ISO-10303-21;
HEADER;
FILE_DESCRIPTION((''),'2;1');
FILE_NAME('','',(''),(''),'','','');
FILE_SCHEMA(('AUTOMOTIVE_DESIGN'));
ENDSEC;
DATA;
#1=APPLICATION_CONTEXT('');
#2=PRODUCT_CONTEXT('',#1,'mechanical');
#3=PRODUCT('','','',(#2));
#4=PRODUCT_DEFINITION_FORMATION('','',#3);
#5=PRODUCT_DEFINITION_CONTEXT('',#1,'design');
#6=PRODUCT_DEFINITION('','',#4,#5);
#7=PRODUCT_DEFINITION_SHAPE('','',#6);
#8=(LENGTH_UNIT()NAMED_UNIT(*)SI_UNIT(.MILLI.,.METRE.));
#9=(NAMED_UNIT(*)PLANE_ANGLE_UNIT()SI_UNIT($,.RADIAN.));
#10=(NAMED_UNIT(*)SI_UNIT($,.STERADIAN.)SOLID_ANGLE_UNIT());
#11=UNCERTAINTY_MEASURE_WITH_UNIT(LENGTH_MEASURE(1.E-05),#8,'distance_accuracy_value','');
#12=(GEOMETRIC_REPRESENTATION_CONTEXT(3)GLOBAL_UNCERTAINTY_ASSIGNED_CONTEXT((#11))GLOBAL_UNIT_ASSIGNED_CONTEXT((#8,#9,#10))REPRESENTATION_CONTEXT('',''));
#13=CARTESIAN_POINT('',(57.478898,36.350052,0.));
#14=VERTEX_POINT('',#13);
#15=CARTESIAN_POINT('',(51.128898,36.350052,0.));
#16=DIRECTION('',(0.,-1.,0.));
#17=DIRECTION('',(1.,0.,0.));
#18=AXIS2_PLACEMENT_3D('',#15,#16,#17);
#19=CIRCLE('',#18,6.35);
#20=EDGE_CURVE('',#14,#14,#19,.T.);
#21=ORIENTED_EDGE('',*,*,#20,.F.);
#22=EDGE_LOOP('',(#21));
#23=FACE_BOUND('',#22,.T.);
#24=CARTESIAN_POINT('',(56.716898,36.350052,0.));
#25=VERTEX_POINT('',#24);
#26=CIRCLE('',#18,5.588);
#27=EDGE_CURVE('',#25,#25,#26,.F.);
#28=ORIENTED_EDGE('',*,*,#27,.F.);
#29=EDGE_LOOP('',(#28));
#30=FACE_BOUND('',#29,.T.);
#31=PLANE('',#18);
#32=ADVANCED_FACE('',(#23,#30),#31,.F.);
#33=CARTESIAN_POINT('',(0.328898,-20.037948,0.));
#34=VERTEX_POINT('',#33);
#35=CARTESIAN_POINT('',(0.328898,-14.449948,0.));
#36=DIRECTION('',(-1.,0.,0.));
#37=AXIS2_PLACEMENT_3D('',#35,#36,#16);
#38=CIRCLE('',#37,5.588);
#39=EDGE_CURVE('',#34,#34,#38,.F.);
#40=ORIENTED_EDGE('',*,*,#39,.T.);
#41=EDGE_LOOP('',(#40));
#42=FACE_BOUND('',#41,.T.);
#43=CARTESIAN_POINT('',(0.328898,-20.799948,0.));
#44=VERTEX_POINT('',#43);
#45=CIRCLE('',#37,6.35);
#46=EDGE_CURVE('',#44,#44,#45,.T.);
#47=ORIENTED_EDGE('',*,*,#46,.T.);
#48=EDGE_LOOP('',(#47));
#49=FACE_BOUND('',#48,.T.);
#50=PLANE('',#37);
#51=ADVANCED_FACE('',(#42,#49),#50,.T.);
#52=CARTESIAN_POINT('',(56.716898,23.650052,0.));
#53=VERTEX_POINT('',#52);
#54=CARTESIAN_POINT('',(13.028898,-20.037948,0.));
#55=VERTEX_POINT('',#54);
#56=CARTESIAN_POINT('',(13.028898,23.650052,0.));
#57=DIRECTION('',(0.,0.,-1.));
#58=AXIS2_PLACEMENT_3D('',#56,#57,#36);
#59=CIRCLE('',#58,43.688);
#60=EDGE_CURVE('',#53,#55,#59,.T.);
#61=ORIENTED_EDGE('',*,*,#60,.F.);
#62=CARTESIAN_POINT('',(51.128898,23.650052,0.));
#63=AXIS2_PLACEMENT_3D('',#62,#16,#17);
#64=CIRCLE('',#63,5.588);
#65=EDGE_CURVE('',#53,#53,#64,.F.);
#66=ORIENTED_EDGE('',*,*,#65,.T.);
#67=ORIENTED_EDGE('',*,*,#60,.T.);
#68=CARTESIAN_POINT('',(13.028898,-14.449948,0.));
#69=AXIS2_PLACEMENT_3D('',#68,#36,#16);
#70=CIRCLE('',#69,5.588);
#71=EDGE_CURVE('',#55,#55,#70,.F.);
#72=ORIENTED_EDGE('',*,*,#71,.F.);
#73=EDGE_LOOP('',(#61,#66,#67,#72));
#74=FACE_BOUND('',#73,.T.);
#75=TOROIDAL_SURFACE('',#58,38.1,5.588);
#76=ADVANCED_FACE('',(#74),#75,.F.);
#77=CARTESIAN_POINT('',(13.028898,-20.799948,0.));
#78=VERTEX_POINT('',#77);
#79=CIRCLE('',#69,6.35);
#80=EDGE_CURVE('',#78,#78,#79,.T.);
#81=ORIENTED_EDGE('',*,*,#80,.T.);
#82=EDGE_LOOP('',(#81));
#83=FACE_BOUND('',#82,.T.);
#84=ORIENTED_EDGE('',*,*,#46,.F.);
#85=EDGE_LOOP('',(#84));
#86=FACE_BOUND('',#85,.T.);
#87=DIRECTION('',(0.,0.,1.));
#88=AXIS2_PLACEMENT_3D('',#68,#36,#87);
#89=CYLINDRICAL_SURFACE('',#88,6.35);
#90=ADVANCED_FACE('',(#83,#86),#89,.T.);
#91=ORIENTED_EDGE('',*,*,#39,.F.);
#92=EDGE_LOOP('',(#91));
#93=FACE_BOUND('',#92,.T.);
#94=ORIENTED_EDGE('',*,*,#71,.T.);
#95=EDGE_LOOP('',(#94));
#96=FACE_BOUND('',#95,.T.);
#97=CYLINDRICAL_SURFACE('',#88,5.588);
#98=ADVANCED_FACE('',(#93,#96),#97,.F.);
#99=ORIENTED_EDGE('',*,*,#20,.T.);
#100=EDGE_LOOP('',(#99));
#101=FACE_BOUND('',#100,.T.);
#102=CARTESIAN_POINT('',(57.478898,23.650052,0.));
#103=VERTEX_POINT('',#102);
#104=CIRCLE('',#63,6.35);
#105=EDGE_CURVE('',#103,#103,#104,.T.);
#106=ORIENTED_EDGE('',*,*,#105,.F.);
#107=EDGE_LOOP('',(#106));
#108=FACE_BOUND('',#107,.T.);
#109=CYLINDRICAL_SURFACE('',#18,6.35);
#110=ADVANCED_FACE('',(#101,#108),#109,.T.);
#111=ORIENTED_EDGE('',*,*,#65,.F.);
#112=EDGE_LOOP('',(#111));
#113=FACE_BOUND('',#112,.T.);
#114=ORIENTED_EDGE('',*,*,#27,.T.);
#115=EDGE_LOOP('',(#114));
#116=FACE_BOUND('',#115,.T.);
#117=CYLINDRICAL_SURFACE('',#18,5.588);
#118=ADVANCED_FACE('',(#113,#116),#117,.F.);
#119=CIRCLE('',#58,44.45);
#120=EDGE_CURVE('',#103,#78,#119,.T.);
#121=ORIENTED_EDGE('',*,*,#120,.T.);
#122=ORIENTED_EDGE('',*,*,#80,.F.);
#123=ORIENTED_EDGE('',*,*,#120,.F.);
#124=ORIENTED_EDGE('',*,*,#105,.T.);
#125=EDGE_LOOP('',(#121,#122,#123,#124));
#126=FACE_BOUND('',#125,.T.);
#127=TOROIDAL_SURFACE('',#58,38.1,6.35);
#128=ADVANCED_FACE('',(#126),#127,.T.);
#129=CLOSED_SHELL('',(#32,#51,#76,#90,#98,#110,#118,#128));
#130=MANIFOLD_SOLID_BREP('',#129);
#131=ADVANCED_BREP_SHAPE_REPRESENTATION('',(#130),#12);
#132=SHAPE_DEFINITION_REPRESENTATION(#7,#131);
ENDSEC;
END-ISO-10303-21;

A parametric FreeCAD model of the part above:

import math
import FreeCAD as App
import Part
import Sketcher
Q = App.Units.Quantity

doc = App.newDocument("Part")
body = doc.addObject("PartDesign::Body", "Body")

# Sketch on XZ plane
sketch1 = body.newObject("Sketcher::SketchObject", "Sketch")
sketch1.AttachmentSupport = (doc.getObject("XZ_Plane"), [""])
sketch1.MapMode = "FlatFace"
sketch1.AttachmentOffset = App.Placement(App.Vector(0, 0, -36.350052), App.Rotation())
sketch1.addGeometry([
    Part.Circle(App.Vector(51, 0, 0), App.Vector(0, 0, 1), 6),
    Part.Circle(App.Vector(51, 0, 0), App.Vector(0, 0, 1), 6),
], False)
sketch1.addConstraint([
    Sketcher.Constraint("Coincident", 1, 3, 0, 3),
    Sketcher.Constraint("PointOnObject", 0, 3, -1),
    Sketcher.Constraint("Diameter", 0, Q("0.5 in")),
    Sketcher.Constraint("Diameter", 1, Q("0.44 in")),
    Sketcher.Constraint("DistanceX", -1, 1, 0, 3, Q("51.128898 mm")),
])

# Sketch on XY plane
sketch2 = body.newObject("Sketcher::SketchObject", "Sketch001")
sketch2.AttachmentSupport = (doc.getObject("XY_Plane"), [""])
sketch2.MapMode = "FlatFace"
sketch2.addGeometry([
    Part.LineSegment(App.Vector(51, 36, 0), App.Vector(51, 24, 0)),
    Part.ArcOfCircle(Part.Circle(App.Vector(13, 24, 0), App.Vector(0, 0, 1), 38), math.radians(-90), math.radians(0)),
    Part.LineSegment(App.Vector(13, -14, 0), App.Vector(0, -14, 0)),
], False)
sketch2.addConstraint([
    Sketcher.Constraint("Tangent", 0, 2, 1, 2),
    Sketcher.Constraint("Tangent", 1, 1, 2, 1),
    Sketcher.Constraint("Vertical", 0),
    Sketcher.Constraint("Horizontal", 2),
    Sketcher.Constraint("Equal", 2, 0),
    Sketcher.Constraint("Radius", 1, Q("1.5 in")),
    Sketcher.Constraint("DistanceX", 2, 2, 2, 1, Q("0.5 in")),
    Sketcher.Constraint("DistanceX", -1, 1, 1, 3, Q("13.028898 mm")),
    Sketcher.Constraint("DistanceY", -1, 1, 1, 3, Q("23.650052 mm")),
])
doc.recompute()

additivepipe = body.newObject("PartDesign::AdditivePipe", "AdditivePipe")
additivepipe.Profile = sketch1
additivepipe.Spine = (sketch2, ["Edge1", "Edge2", "Edge3"])

doc.recompute()
